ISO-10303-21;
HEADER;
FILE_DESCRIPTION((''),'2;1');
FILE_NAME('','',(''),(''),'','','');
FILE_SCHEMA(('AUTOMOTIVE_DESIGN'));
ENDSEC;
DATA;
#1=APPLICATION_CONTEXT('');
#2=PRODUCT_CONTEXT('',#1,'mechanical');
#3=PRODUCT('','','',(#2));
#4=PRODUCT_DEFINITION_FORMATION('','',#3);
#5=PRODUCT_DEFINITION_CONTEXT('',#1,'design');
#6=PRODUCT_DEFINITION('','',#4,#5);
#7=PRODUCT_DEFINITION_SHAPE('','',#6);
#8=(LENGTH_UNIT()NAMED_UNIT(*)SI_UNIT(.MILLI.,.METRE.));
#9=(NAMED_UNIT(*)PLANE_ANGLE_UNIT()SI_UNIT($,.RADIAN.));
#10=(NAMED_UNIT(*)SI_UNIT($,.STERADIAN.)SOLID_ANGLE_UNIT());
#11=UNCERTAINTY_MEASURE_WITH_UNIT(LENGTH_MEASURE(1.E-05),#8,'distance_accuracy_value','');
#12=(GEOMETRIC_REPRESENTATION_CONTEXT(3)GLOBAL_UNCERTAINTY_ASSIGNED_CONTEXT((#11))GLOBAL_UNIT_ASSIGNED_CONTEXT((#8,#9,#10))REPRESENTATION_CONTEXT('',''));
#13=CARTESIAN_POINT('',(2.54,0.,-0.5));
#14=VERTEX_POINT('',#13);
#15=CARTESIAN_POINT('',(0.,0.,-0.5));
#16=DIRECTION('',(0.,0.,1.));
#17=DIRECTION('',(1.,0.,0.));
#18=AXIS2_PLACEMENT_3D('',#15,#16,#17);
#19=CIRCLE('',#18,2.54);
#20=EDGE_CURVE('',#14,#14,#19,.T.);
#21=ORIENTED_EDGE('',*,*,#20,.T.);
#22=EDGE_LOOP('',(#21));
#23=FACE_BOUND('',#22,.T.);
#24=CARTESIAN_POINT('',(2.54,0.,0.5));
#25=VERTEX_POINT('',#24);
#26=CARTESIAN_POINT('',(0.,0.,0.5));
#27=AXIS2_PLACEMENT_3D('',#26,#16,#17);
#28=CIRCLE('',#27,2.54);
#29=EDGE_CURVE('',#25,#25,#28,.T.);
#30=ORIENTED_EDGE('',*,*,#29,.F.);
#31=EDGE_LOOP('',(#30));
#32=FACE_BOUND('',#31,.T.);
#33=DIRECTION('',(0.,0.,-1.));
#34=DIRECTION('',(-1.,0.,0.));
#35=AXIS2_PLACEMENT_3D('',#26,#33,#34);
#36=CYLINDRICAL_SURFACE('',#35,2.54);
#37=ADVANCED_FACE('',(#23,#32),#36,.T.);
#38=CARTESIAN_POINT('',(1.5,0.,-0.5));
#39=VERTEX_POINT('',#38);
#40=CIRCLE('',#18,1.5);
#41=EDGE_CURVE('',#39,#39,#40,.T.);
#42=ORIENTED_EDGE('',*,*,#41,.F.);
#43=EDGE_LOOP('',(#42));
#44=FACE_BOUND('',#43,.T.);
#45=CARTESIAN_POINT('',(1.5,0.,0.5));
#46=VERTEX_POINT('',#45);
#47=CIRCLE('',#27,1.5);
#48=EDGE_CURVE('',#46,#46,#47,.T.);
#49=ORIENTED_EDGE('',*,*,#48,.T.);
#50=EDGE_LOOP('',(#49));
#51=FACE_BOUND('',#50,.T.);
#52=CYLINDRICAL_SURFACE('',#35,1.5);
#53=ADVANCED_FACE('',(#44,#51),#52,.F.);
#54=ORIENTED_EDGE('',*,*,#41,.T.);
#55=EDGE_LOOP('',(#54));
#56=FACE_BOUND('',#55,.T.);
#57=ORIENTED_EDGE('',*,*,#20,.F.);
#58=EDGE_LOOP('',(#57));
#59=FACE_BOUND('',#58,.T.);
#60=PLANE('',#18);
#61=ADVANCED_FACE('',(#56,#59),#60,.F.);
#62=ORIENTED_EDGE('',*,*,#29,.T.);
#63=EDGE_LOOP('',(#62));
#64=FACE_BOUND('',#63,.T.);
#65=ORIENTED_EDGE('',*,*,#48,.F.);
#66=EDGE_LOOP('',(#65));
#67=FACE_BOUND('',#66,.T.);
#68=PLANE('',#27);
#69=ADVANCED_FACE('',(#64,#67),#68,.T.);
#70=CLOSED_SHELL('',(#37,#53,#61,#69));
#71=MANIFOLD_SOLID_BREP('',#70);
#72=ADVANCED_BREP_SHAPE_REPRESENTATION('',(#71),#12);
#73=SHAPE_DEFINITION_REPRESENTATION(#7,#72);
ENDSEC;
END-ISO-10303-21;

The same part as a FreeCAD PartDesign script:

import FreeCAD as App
import Part
import Sketcher

doc = App.newDocument("Part")
body = doc.addObject("PartDesign::Body", "Body")

# Sketch on XY plane
sketch1 = body.newObject("Sketcher::SketchObject", "Sketch")
sketch1.AttachmentSupport = (doc.getObject("XY_Plane"), [""])
sketch1.MapMode = "FlatFace"
sketch1.addGeometry([
    Part.Circle(App.Vector(0, 0, 0), App.Vector(0, 0, 1), 2.5),
    Part.Circle(App.Vector(0, 0, 0), App.Vector(0, 0, 1), 1.5),
], False)
sketch1.addConstraint([
    Sketcher.Constraint("Coincident", 0, 3, -1, 1),
    Sketcher.Constraint("Coincident", 1, 3, -1, 1),
    Sketcher.Constraint("Diameter", 1, 3.0),
    Sketcher.Constraint("Diameter", 0, 5.08),
])
pad1 = body.newObject("PartDesign::Pad", "Pad")
pad1.Profile = sketch1
pad1.Length = 1
pad1.Midplane = True

doc.recompute()
